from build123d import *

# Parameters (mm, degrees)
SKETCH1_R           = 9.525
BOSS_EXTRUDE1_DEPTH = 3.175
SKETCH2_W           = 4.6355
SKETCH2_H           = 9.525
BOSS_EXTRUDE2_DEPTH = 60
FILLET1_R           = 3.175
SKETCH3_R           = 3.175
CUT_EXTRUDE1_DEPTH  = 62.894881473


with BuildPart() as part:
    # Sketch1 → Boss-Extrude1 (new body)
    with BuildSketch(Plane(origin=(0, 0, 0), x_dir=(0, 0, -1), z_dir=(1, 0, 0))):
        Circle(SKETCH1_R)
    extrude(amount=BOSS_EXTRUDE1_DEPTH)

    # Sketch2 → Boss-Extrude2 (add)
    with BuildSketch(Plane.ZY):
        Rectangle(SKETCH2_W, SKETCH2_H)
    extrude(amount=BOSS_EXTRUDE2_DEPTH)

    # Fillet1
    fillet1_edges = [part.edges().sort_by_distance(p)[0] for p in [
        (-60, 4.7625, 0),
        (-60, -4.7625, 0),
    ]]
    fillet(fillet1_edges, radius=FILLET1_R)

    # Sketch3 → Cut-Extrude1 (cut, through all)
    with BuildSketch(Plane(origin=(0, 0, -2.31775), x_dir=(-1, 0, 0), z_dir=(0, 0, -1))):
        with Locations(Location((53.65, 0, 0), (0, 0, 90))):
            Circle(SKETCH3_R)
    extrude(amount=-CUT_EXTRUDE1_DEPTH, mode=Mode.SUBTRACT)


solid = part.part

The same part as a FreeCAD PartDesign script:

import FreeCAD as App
import Part
import Sketcher
Q = App.Units.Quantity


def edges_at(feature, points):
    """Names of the edges that pass closest to the given points."""
    edges = feature.Shape.Edges
    near = lambda p: min(range(len(edges)), key=lambda i: edges[i].distToShape(Part.Vertex(*p))[0])
    return sorted({f"Edge{near(p) + 1}" for p in points})


def add_polygon(sketch, points):
    """Adds a closed chain of lines whose ends are joined by coincident constraints."""
    first, n = sketch.GeometryCount, len(points)
    for a, b in zip(points, points[1:] + points[:1]):
        sketch.addGeometry(Part.LineSegment(App.Vector(*a, 0), App.Vector(*b, 0)), False)
    for i in range(n):
        sketch.addConstraint(Sketcher.Constraint("Coincident", first + i, 2, first + (i + 1) % n, 1))

doc = App.newDocument("Part")
body = doc.addObject("PartDesign::Body", "Body")

# Sketch on YZ plane
sketch1 = body.newObject("Sketcher::SketchObject", "Sketch")
sketch1.AttachmentSupport = (doc.getObject("YZ_Plane"), [""])
sketch1.MapMode = "FlatFace"
sketch1.addGeometry(Part.Circle(App.Vector(0, 0, 0), App.Vector(0, 0, 1), 10), False)
sketch1.addConstraint([
    Sketcher.Constraint("Coincident", 0, 3, -1, 1),
    Sketcher.Constraint("Diameter", 0, Q("0.75 in")),
])
pad1 = body.newObject("PartDesign::Pad", "Pad")
pad1.Profile = sketch1
pad1.Length = Q("0.125 in")

# Sketch on YZ plane
sketch2 = body.newObject("Sketcher::SketchObject", "Sketch001")
sketch2.AttachmentSupport = (doc.getObject("YZ_Plane"), [""])
sketch2.MapMode = "FlatFace"
add_polygon(sketch2, [(4.8, -2.3), (-4.8, -2.3), (-4.8, 2.3), (4.8, 2.3)])  # lines 0-3
sketch2.addConstraint([
    Sketcher.Constraint("Horizontal", 0),
    Sketcher.Constraint("Vertical", 1),
    Sketcher.Constraint("Horizontal", 2),
    Sketcher.Constraint("Vertical", 3),
    Sketcher.Constraint("Symmetric", 0, 2, 2, 2, -1, 1),
    Sketcher.Constraint("DistanceX", 0, 2, 0, 1, Q("0.375 in")),
    Sketcher.Constraint("DistanceY", 1, 1, 1, 2, Q("0.1825 in")),
])
pad2 = body.newObject("PartDesign::Pad", "Pad001")
pad2.Profile = sketch2
pad2.Length = 60
pad2.Reversed = True
doc.recompute()

fillet = body.newObject("PartDesign::Fillet", "Fillet")
fillet.Base = (pad2, edges_at(pad2, [(-60, 4.763, 0), (-60, -4.763, 0)]))
fillet.Radius = Q("0.125 in")

# Sketch on XY plane
sketch3 = body.newObject("Sketcher::SketchObject", "Sketch002")
sketch3.AttachmentSupport = (doc.getObject("XY_Plane"), [""])
sketch3.MapMode = "FlatFace"
sketch3.AttachmentOffset = App.Placement(App.Vector(0, 0, -2.31775), App.Rotation())
sketch3.addGeometry(Part.Circle(App.Vector(-53.6, 0, 0), App.Vector(0, 0, 1), 3.2), False)
sketch3.addConstraint([
    Sketcher.Constraint("PointOnObject", 0, 3, -1),
    Sketcher.Constraint("Diameter", 0, Q("0.25 in")),
    Sketcher.Constraint("DistanceX", 0, 3, -1, 1, Q("53.65 mm")),
])
pocket1 = body.newObject("PartDesign::Pocket", "Pocket")
pocket1.Profile = sketch3
pocket1.Type = "ThroughAll"
pocket1.Reversed = True

doc.recompute()
